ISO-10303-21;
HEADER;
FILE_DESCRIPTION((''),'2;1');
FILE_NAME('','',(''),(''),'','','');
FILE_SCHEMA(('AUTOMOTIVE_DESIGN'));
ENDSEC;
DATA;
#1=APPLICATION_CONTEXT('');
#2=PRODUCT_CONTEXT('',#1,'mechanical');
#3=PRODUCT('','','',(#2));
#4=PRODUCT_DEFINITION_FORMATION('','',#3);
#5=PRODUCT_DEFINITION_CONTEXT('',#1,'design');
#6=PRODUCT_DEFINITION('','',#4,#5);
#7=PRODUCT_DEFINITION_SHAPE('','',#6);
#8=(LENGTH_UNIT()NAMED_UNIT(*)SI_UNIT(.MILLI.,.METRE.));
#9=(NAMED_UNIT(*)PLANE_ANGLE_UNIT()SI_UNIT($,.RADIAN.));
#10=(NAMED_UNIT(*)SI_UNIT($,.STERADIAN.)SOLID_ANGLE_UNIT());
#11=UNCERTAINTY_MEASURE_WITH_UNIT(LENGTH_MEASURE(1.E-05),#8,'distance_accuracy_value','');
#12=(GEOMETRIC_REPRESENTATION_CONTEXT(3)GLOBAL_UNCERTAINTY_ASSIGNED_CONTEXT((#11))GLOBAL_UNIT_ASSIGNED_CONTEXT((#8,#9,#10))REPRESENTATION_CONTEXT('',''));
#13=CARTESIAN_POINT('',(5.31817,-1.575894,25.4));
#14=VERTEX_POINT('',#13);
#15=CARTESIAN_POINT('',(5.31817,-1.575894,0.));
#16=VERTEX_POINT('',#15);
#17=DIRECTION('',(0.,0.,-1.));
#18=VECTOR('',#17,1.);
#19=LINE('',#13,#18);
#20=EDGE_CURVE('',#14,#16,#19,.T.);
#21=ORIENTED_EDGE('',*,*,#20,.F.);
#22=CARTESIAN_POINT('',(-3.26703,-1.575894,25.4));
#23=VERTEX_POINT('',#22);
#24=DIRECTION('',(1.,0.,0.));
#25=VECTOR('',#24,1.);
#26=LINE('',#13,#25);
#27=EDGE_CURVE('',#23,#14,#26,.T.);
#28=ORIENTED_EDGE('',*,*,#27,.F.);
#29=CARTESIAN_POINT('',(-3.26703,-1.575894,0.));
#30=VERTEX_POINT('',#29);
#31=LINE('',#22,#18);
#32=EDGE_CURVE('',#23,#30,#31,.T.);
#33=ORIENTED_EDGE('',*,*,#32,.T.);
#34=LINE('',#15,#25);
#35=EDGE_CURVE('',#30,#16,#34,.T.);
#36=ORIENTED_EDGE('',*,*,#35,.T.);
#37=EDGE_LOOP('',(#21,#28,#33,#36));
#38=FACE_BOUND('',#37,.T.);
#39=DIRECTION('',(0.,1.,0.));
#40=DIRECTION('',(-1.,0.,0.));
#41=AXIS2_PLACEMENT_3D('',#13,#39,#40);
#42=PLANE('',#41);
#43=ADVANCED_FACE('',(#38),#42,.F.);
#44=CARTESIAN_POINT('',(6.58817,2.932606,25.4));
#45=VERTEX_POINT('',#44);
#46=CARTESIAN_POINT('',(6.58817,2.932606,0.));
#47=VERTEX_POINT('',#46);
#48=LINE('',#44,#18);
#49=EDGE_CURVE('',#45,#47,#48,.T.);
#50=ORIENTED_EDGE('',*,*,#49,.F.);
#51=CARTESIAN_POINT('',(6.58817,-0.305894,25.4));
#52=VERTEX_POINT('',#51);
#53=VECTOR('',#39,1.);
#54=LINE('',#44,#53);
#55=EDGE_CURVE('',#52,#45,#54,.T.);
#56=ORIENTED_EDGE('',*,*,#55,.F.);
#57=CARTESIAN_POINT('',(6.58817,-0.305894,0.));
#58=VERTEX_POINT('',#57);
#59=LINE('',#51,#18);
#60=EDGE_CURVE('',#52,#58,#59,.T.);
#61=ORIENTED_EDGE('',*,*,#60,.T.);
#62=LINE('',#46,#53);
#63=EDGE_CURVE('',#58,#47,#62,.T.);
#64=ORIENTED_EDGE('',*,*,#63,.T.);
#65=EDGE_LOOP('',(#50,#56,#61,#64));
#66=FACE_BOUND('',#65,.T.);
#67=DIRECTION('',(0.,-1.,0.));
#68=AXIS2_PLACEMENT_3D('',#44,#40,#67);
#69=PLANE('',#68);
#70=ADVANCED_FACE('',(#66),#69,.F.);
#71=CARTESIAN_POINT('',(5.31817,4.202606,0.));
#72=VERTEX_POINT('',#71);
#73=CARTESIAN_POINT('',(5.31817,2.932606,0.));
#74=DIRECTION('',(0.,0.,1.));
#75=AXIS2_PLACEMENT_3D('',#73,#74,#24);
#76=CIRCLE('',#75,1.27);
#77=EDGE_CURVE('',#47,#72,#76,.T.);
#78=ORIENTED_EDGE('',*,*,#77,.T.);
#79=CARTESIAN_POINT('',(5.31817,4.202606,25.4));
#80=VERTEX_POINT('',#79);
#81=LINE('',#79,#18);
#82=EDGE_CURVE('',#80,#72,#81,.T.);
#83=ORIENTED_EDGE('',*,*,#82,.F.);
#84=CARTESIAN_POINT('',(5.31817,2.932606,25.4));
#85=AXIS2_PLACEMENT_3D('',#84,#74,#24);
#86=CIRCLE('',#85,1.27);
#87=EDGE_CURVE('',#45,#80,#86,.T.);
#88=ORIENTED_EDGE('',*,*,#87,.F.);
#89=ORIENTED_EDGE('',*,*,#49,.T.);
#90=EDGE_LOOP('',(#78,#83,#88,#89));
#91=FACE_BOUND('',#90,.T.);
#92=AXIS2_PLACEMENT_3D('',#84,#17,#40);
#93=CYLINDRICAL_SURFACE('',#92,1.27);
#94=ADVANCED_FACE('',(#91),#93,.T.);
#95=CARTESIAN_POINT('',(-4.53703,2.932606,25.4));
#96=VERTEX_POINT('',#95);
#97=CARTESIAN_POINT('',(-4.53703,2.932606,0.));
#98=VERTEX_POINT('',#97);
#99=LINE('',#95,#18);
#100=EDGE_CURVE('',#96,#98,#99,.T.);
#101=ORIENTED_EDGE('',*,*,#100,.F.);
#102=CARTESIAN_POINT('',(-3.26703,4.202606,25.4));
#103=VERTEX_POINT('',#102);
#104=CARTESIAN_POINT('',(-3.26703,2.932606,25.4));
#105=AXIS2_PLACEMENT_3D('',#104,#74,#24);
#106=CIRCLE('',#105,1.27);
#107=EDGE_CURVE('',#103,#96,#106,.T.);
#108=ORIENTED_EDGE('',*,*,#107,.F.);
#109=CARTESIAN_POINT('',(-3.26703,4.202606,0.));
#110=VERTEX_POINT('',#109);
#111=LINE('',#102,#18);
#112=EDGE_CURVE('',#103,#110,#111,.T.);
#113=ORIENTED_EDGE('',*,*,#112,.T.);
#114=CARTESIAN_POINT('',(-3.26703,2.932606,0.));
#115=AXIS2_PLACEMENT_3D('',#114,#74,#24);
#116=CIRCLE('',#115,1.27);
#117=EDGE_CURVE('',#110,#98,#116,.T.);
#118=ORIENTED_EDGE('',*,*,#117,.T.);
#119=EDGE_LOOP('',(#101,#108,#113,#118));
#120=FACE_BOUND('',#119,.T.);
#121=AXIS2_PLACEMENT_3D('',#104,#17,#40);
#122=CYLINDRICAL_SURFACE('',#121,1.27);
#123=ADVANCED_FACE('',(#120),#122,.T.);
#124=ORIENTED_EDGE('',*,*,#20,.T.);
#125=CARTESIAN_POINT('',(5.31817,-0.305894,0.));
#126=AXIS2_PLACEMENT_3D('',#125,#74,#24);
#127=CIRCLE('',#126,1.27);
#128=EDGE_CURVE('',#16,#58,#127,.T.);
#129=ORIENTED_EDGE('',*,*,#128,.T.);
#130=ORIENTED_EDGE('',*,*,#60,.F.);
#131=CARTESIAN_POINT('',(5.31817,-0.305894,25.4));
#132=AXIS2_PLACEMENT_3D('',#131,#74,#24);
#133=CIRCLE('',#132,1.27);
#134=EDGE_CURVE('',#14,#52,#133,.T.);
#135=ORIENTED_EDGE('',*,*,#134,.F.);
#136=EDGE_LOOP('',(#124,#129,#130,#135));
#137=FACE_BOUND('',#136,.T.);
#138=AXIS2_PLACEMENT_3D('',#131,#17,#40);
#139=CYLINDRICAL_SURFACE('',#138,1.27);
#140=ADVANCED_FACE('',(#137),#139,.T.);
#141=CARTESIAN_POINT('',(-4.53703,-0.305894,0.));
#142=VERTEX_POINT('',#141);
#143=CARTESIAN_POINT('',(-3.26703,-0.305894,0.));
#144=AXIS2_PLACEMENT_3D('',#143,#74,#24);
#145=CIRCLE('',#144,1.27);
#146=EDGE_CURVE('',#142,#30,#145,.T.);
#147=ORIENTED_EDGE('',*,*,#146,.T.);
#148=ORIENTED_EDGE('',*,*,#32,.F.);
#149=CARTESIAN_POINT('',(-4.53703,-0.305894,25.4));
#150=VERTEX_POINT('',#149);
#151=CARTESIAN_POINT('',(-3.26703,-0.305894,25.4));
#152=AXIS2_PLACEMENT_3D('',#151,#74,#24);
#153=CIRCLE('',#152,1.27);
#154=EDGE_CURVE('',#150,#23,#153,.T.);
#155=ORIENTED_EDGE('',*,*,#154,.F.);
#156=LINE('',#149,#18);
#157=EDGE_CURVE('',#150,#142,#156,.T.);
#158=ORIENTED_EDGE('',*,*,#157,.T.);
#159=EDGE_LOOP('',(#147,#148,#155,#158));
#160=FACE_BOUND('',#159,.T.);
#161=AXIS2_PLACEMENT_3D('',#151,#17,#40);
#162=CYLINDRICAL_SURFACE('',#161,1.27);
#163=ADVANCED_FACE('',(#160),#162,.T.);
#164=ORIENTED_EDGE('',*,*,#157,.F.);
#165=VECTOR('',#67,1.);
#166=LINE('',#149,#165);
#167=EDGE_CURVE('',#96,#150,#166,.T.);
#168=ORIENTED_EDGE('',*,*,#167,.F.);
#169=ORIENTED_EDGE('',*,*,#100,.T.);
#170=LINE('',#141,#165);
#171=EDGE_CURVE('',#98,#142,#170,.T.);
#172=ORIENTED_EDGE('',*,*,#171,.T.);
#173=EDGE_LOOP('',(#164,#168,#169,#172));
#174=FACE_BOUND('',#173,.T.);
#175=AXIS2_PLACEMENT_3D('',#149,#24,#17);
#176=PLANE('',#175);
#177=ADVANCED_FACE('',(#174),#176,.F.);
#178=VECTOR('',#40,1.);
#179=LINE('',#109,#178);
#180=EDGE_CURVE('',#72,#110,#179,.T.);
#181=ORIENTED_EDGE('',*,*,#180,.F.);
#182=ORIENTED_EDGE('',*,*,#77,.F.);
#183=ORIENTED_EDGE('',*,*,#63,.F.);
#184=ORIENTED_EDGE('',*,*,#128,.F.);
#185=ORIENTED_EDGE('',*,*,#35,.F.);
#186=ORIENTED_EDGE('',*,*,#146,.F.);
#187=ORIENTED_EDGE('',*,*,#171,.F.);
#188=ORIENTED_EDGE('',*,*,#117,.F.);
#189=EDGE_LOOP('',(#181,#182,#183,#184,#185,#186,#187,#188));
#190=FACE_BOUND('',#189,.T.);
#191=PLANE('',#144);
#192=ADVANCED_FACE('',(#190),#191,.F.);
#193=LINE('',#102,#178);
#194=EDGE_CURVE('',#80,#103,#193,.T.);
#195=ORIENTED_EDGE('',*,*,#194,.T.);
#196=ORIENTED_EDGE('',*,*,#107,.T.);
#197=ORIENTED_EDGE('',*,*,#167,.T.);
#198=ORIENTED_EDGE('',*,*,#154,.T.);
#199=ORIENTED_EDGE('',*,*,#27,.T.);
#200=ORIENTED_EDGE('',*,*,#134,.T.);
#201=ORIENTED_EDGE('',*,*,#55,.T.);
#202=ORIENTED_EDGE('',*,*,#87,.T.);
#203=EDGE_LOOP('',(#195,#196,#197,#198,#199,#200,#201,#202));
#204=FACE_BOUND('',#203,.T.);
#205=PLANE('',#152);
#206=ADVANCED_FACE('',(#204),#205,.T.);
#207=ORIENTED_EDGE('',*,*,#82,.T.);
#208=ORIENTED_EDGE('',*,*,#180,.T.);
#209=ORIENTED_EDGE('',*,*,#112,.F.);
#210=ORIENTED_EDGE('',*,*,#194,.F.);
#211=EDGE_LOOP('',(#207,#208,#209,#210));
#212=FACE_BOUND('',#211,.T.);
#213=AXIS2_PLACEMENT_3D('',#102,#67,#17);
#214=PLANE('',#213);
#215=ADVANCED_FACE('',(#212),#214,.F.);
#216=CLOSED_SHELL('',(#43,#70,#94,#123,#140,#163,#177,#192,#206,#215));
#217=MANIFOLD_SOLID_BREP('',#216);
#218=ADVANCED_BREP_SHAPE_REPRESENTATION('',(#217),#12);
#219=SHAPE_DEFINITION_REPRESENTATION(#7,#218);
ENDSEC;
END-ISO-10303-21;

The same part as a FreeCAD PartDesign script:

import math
import FreeCAD as App
import Part
import Sketcher
from FreeCAD import Vector
Q = App.Units.Quantity

doc = App.newDocument("Part")
body = doc.addObject("PartDesign::Body", "Body")

sketch1 = body.newObject("Sketcher::SketchObject", "Sketch")
sketch1.AttachmentSupport = (doc.getObject("XY_Plane"), [""])
sketch1.MapMode = "FlatFace"
sketch1.addGeometry([
    Part.LineSegment(Vector(5.31817, 4.202606, 0), Vector(-3.26703, 4.202606, 0)),
    Part.ArcOfCircle(Part.Circle(Vector(-3.26703, 2.932606, 0), Vector(0, 0, 1), 1.27), math.radians(90), math.radians(180)),
    Part.LineSegment(Vector(-4.53703, 2.932606, 0), Vector(-4.53703, -0.305894, 0)),
    Part.ArcOfCircle(Part.Circle(Vector(-3.26703, -0.305894, 0), Vector(0, 0, 1), 1.27), math.radians(180), math.radians(270)),
    Part.LineSegment(Vector(-3.26703, -1.575894, 0), Vector(5.31817, -1.575894, 0)),
    Part.ArcOfCircle(Part.Circle(Vector(5.31817, -0.305894, 0), Vector(0, 0, 1), 1.27), math.radians(-90), math.radians(0)),
    Part.LineSegment(Vector(6.58817, -0.305894, 0), Vector(6.58817, 2.932606, 0)),
    Part.ArcOfCircle(Part.Circle(Vector(5.31817, 2.932606, 0), Vector(0, 0, 1), 1.27), math.radians(0), math.radians(90)),
], False)
sketch1.addConstraint([
    Sketcher.Constraint("Tangent", 0, 2, 1, 1),
    Sketcher.Constraint("Tangent", 1, 2, 2, 1),
    Sketcher.Constraint("Tangent", 2, 2, 3, 1),
    Sketcher.Constraint("Tangent", 3, 2, 4, 1),
    Sketcher.Constraint("Tangent", 4, 2, 5, 1),
    Sketcher.Constraint("Tangent", 5, 2, 6, 1),
    Sketcher.Constraint("Tangent", 6, 2, 7, 1),
    Sketcher.Constraint("Tangent", 7, 2, 0, 1),
    Sketcher.Constraint("Horizontal", 0),
    Sketcher.Constraint("Vertical", 2),
    Sketcher.Constraint("Horizontal", 4),
    Sketcher.Constraint("Vertical", 6),
    Sketcher.Constraint("Equal", 1, 3),
    Sketcher.Constraint("Equal", 3, 5),
    Sketcher.Constraint("Equal", 5, 7),
    Sketcher.Constraint("Radius", 1, Q("0.05 in")),
    Sketcher.Constraint("DistanceX", 0, 2, 0, 1, Q("0.338 in")),
    Sketcher.Constraint("DistanceY", 2, 2, 2, 1, Q("0.1275 in")),
    Sketcher.Constraint("DistanceX", 1, 3, -1, 1, 3.26703),
    Sketcher.Constraint("DistanceY", -1, 1, 1, 3, 2.932606),
])
pad1 = body.newObject("PartDesign::Pad", "Pad")
pad1.Profile = sketch1
pad1.Length = Q("1 in")

doc.recompute()
